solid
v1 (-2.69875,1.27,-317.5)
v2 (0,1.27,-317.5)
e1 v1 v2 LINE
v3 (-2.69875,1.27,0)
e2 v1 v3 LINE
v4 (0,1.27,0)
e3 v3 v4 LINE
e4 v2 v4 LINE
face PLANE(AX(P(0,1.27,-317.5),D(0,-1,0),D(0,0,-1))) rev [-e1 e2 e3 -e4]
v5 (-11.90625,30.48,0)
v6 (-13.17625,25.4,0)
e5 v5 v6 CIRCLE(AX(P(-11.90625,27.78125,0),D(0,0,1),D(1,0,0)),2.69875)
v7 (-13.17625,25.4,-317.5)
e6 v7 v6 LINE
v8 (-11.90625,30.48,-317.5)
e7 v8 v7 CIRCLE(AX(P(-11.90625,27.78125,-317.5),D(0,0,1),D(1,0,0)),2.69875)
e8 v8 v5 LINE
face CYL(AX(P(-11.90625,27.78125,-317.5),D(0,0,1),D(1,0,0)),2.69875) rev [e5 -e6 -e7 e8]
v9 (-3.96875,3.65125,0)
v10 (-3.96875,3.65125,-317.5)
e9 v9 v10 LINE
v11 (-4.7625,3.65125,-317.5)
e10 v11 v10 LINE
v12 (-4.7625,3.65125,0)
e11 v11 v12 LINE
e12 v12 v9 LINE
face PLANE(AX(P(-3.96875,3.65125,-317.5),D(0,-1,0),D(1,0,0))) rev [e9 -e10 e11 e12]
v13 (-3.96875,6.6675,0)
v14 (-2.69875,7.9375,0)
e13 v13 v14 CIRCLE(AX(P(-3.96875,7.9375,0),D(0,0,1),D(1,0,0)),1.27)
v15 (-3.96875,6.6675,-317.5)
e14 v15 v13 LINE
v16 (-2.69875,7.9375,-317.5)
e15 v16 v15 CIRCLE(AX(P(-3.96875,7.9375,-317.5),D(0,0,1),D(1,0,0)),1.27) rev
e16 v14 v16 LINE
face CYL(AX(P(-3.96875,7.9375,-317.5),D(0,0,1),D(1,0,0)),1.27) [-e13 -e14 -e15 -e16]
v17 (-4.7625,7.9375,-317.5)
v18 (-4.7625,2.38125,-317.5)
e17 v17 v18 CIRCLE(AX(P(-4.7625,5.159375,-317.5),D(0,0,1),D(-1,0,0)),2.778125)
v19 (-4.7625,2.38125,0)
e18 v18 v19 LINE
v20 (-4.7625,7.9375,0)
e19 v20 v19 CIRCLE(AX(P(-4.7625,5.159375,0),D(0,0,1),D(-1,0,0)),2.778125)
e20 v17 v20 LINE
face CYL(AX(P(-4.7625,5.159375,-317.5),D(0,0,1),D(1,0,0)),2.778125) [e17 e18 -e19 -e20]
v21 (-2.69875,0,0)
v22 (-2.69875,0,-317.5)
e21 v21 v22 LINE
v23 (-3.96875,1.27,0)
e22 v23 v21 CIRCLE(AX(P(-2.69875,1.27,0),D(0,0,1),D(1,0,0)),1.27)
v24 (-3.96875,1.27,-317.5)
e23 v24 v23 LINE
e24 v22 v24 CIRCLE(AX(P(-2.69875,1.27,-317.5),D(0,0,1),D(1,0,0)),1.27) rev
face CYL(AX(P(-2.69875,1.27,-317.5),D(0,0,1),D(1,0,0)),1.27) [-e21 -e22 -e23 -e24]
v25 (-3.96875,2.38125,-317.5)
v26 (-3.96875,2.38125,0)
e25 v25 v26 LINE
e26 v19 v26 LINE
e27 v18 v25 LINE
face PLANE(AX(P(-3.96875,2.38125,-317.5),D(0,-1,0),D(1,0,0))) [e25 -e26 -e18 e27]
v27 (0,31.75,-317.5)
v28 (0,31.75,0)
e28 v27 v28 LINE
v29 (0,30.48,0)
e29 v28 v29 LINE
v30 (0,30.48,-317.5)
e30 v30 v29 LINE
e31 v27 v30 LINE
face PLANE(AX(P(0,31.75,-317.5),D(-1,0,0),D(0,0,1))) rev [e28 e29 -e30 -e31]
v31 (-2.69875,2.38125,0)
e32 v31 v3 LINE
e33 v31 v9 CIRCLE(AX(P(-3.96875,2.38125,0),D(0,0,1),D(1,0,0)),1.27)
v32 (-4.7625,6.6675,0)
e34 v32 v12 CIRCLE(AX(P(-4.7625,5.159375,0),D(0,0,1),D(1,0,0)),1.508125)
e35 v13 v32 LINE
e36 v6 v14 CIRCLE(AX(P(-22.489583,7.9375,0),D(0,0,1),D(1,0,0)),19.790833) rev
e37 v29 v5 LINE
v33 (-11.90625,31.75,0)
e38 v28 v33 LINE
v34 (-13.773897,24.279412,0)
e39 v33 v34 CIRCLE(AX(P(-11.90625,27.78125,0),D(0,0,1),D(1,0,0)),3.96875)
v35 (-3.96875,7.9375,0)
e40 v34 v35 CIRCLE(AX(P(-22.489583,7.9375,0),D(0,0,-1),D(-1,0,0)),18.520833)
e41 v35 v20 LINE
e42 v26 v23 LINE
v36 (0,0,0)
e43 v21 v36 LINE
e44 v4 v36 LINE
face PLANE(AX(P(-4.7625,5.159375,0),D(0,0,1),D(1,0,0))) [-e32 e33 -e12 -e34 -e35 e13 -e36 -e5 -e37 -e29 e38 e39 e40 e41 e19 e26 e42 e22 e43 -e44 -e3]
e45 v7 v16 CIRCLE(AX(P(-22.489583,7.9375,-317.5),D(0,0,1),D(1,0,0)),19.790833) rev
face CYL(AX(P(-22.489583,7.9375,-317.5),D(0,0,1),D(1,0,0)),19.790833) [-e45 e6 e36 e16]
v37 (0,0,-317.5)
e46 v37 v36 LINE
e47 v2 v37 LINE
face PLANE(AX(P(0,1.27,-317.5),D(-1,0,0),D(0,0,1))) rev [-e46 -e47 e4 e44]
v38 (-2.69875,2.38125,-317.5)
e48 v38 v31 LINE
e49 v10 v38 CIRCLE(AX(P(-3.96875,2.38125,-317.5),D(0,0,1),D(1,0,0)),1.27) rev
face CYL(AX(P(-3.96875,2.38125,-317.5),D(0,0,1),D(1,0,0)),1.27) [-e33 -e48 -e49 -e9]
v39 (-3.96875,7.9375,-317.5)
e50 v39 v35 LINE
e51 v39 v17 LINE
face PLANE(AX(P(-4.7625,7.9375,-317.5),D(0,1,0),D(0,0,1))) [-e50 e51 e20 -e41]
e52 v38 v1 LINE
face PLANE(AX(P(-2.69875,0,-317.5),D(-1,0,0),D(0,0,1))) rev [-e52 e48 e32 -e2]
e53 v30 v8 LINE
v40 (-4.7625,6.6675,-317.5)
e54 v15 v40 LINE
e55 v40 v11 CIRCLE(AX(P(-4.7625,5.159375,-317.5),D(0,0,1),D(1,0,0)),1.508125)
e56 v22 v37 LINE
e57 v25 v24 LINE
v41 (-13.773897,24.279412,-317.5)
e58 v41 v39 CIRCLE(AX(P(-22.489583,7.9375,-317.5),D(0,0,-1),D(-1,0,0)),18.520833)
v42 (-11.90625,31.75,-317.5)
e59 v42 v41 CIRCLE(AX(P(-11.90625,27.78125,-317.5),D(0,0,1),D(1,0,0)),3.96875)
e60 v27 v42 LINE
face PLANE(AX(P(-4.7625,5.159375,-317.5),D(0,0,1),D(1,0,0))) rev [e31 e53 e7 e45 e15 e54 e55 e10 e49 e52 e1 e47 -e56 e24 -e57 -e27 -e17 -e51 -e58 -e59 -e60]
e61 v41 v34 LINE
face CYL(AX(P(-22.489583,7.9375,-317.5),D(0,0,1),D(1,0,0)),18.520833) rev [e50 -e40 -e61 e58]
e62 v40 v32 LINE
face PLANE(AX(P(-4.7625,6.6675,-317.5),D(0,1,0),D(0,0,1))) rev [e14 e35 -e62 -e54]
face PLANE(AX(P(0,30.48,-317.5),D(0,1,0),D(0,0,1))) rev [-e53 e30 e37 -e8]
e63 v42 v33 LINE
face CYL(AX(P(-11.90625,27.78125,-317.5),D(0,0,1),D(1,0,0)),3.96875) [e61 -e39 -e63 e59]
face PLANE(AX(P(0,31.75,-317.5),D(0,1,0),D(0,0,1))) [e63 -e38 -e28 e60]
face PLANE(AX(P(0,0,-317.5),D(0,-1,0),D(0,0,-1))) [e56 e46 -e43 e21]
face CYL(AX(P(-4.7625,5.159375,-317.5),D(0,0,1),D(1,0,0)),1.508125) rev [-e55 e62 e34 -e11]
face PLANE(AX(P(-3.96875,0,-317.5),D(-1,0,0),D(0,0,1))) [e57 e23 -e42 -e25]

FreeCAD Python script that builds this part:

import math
import FreeCAD as App
import Part
import Sketcher
from FreeCAD import Vector
Q = App.Units.Quantity


def edges_at(feature, points):
    """Names of the edges that pass closest to the given points."""
    edges = feature.Shape.Edges
    near = lambda p: min(range(len(edges)), key=lambda i: edges[i].distToShape(Part.Vertex(*p))[0])
    return sorted({f"Edge{near(p) + 1}" for p in points})

doc = App.newDocument("Part")
body = doc.addObject("PartDesign::Body", "Body")

# Sketch on XY plane
sketch1 = doc.addObject("Sketcher::SketchObject", "Sketch")
body.addObject(sketch1)
sketch1.AttachmentSupport = (doc.XY_Plane, [""])
sketch1.MapMode = "FlatFace"
sketch1.addGeometry(Part.LineSegment(Vector(0, 31.8, 0), Vector(-11.9, 31.8, 0)), False)
sketch1.addGeometry(Part.ArcOfCircle(Part.Circle(Vector(-11.9, 27.8, 0), Vector(0, 0, 1), 4), math.radians(90), math.radians(242)), False)
sketch1.addGeometry(Part.ArcOfCircle(Part.Circle(Vector(-22.5, 7.9, 0), Vector(0, 0, 1), 18.5), math.radians(0), math.radians(62)), False)
sketch1.addGeometry(Part.LineSegment(Vector(-4, 7.9, 0), Vector(-4.8, 7.9, 0)), False)
sketch1.addGeometry(Part.ArcOfCircle(Part.Circle(Vector(-4.8, 5.2, 0), Vector(0, 0, 1), 2.8), math.radians(90), math.radians(270)), False)
sketch1.addGeometry(Part.LineSegment(Vector(-4.8, 2.4, 0), Vector(-4, 2.4, 0)), False)
sketch1.addGeometry(Part.LineSegment(Vector(-4, 2.4, 0), Vector(-4, 0, 0)), False)
sketch1.addGeometry(Part.LineSegment(Vector(-4, 0, 0), Vector(0, 0, 0)), False)
sketch1.addGeometry(Part.LineSegment(Vector(0, 0, 0), Vector(0, 1.3, 0)), False)
sketch1.addGeometry(Part.LineSegment(Vector(0, 1.3, 0), Vector(-2.7, 1.3, 0)), False)
sketch1.addGeometry(Part.LineSegment(Vector(-2.7, 1.3, 0), Vector(-2.7, 3.7, 0)), False)
sketch1.addGeometry(Part.LineSegment(Vector(-2.7, 3.7, 0), Vector(-4.8, 3.7, 0)), False)
sketch1.addGeometry(Part.ArcOfCircle(Part.Circle(Vector(-4.8, 5.2, 0), Vector(0, 0, 1), 1.5), math.radians(90), math.radians(270)), False)
sketch1.addGeometry(Part.LineSegment(Vector(-4.8, 6.7, 0), Vector(-2.7, 6.7, 0)), False)
sketch1.addGeometry(Part.ArcOfCircle(Part.Circle(Vector(-22.5, 7.9, 0), Vector(0, 0, 1), 19.8), math.radians(-4), math.radians(62)), False)
sketch1.addGeometry(Part.ArcOfCircle(Part.Circle(Vector(-11.9, 27.8, 0), Vector(0, 0, 1), 2.7), math.radians(90), math.radians(242)), False)
sketch1.addGeometry(Part.LineSegment(Vector(-11.9, 30.5, 0), Vector(0, 30.5, 0)), False)
sketch1.addGeometry(Part.LineSegment(Vector(0, 30.5, 0), Vector(0, 31.8, 0)), False)
sketch1.addConstraint(Sketcher.Constraint("Tangent", 0, 2, 1, 1))
sketch1.addConstraint(Sketcher.Constraint("Tangent", 1, 2, 2, 2))
sketch1.addConstraint(Sketcher.Constraint("Coincident", 2, 1, 3, 1))
sketch1.addConstraint(Sketcher.Constraint("Tangent", 3, 2, 4, 1))
sketch1.addConstraint(Sketcher.Constraint("Tangent", 4, 2, 5, 1))
sketch1.addConstraint(Sketcher.Constraint("Coincident", 5, 2, 6, 1))
sketch1.addConstraint(Sketcher.Constraint("Coincident", 6, 2, 7, 1))
sketch1.addConstraint(Sketcher.Constraint("Coincident", 7, 2, 8, 1))
sketch1.addConstraint(Sketcher.Constraint("Coincident", 8, 2, 9, 1))
sketch1.addConstraint(Sketcher.Constraint("Coincident", 9, 2, 10, 1))
sketch1.addConstraint(Sketcher.Constraint("Coincident", 10, 2, 11, 1))
sketch1.addConstraint(Sketcher.Constraint("Tangent", 11, 2, 12, 2))
sketch1.addConstraint(Sketcher.Constraint("Tangent", 12, 1, 13, 1))
sketch1.addConstraint(Sketcher.Constraint("Coincident", 13, 2, 14, 1))
sketch1.addConstraint(Sketcher.Constraint("Tangent", 14, 2, 15, 2))
sketch1.addConstraint(Sketcher.Constraint("Tangent", 15, 1, 16, 1))
sketch1.addConstraint(Sketcher.Constraint("Coincident", 16, 2, 17, 1))
sketch1.addConstraint(Sketcher.Constraint("Coincident", 17, 2, 0, 1))
sketch1.addConstraint(Sketcher.Constraint("Horizontal", 0))
sketch1.addConstraint(Sketcher.Constraint("Horizontal", 3))
sketch1.addConstraint(Sketcher.Constraint("Horizontal", 5))
sketch1.addConstraint(Sketcher.Constraint("Vertical", 6))
sketch1.addConstraint(Sketcher.Constraint("Horizontal", 7))
sketch1.addConstraint(Sketcher.Constraint("Vertical", 8))
sketch1.addConstraint(Sketcher.Constraint("Horizontal", 9))
sketch1.addConstraint(Sketcher.Constraint("Vertical", 10))
sketch1.addConstraint(Sketcher.Constraint("Horizontal", 11))
sketch1.addConstraint(Sketcher.Constraint("Horizontal", 13))
sketch1.addConstraint(Sketcher.Constraint("Horizontal", 16))
sketch1.addConstraint(Sketcher.Constraint("Vertical", 17))
sketch1.addConstraint(Sketcher.Constraint("Coincident", 7, 2, -1, 1))
sketch1.addConstraint(Sketcher.Constraint("Coincident", 12, 3, 4, 3))
sketch1.addConstraint(Sketcher.Constraint("Coincident", 14, 3, 2, 3))
sketch1.addConstraint(Sketcher.Constraint("Coincident", 15, 3, 1, 3))
sketch1.addConstraint(Sketcher.Constraint("PointOnObject", 16, 2, -2))
sketch1.addConstraint(Sketcher.Constraint("Horizontal", 14, 3, 2, 1))
sketch1.addConstraint(Sketcher.Constraint("Vertical", 2, 1, 5, 2))
sketch1.addConstraint(Sketcher.Constraint("Equal", 6, 10))
sketch1.addConstraint(Sketcher.Constraint("Equal", 8, 17))
sketch1.addConstraint(Sketcher.Constraint("DistanceY", -1, 1, 14, 2, Q("1 in")))
sketch1.addConstraint(Sketcher.Constraint("Radius", 1, Q("0.15625 in")))
sketch1.addConstraint(Sketcher.Constraint("Radius", 4, Q("0.109375 in")))
sketch1.addConstraint(Sketcher.Constraint("DistanceY", 8, 1, 8, 2, Q("0.05 in")))
sketch1.addConstraint(Sketcher.Constraint("DistanceY", -1, 1, 15, 1, Q("1.2 in")))
sketch1.addConstraint(Sketcher.Constraint("DistanceX", 0, 2, 0, 1, Q("0.46875 in")))
sketch1.addConstraint(Sketcher.Constraint("DistanceX", 3, 2, 3, 1, Q("0.03125 in")))
sketch1.addConstraint(Sketcher.Constraint("DistanceX", 7, 1, 7, 2, Q("0.15625 in")))
sketch1.addConstraint(Sketcher.Constraint("DistanceX", 5, 2, 9, 2, Q("0.05 in")))
pad1 = doc.addObject("PartDesign::Pad", "Pad")
body.addObject(pad1)
pad1.Profile = sketch1
pad1.Length = Q("12.5 in")
pad1.Reversed = True
doc.recompute()

fillet = doc.addObject("PartDesign::Fillet", "Fillet")
body.addObject(fillet)
fillet.Base = (pad1, edges_at(pad1, [(-3.969, 0, -158.75), (-2.74, 6.668, -158.75), (-2.699, 3.651, -158.75)]))
fillet.Radius = Q("0.05 in")

doc.recompute()
